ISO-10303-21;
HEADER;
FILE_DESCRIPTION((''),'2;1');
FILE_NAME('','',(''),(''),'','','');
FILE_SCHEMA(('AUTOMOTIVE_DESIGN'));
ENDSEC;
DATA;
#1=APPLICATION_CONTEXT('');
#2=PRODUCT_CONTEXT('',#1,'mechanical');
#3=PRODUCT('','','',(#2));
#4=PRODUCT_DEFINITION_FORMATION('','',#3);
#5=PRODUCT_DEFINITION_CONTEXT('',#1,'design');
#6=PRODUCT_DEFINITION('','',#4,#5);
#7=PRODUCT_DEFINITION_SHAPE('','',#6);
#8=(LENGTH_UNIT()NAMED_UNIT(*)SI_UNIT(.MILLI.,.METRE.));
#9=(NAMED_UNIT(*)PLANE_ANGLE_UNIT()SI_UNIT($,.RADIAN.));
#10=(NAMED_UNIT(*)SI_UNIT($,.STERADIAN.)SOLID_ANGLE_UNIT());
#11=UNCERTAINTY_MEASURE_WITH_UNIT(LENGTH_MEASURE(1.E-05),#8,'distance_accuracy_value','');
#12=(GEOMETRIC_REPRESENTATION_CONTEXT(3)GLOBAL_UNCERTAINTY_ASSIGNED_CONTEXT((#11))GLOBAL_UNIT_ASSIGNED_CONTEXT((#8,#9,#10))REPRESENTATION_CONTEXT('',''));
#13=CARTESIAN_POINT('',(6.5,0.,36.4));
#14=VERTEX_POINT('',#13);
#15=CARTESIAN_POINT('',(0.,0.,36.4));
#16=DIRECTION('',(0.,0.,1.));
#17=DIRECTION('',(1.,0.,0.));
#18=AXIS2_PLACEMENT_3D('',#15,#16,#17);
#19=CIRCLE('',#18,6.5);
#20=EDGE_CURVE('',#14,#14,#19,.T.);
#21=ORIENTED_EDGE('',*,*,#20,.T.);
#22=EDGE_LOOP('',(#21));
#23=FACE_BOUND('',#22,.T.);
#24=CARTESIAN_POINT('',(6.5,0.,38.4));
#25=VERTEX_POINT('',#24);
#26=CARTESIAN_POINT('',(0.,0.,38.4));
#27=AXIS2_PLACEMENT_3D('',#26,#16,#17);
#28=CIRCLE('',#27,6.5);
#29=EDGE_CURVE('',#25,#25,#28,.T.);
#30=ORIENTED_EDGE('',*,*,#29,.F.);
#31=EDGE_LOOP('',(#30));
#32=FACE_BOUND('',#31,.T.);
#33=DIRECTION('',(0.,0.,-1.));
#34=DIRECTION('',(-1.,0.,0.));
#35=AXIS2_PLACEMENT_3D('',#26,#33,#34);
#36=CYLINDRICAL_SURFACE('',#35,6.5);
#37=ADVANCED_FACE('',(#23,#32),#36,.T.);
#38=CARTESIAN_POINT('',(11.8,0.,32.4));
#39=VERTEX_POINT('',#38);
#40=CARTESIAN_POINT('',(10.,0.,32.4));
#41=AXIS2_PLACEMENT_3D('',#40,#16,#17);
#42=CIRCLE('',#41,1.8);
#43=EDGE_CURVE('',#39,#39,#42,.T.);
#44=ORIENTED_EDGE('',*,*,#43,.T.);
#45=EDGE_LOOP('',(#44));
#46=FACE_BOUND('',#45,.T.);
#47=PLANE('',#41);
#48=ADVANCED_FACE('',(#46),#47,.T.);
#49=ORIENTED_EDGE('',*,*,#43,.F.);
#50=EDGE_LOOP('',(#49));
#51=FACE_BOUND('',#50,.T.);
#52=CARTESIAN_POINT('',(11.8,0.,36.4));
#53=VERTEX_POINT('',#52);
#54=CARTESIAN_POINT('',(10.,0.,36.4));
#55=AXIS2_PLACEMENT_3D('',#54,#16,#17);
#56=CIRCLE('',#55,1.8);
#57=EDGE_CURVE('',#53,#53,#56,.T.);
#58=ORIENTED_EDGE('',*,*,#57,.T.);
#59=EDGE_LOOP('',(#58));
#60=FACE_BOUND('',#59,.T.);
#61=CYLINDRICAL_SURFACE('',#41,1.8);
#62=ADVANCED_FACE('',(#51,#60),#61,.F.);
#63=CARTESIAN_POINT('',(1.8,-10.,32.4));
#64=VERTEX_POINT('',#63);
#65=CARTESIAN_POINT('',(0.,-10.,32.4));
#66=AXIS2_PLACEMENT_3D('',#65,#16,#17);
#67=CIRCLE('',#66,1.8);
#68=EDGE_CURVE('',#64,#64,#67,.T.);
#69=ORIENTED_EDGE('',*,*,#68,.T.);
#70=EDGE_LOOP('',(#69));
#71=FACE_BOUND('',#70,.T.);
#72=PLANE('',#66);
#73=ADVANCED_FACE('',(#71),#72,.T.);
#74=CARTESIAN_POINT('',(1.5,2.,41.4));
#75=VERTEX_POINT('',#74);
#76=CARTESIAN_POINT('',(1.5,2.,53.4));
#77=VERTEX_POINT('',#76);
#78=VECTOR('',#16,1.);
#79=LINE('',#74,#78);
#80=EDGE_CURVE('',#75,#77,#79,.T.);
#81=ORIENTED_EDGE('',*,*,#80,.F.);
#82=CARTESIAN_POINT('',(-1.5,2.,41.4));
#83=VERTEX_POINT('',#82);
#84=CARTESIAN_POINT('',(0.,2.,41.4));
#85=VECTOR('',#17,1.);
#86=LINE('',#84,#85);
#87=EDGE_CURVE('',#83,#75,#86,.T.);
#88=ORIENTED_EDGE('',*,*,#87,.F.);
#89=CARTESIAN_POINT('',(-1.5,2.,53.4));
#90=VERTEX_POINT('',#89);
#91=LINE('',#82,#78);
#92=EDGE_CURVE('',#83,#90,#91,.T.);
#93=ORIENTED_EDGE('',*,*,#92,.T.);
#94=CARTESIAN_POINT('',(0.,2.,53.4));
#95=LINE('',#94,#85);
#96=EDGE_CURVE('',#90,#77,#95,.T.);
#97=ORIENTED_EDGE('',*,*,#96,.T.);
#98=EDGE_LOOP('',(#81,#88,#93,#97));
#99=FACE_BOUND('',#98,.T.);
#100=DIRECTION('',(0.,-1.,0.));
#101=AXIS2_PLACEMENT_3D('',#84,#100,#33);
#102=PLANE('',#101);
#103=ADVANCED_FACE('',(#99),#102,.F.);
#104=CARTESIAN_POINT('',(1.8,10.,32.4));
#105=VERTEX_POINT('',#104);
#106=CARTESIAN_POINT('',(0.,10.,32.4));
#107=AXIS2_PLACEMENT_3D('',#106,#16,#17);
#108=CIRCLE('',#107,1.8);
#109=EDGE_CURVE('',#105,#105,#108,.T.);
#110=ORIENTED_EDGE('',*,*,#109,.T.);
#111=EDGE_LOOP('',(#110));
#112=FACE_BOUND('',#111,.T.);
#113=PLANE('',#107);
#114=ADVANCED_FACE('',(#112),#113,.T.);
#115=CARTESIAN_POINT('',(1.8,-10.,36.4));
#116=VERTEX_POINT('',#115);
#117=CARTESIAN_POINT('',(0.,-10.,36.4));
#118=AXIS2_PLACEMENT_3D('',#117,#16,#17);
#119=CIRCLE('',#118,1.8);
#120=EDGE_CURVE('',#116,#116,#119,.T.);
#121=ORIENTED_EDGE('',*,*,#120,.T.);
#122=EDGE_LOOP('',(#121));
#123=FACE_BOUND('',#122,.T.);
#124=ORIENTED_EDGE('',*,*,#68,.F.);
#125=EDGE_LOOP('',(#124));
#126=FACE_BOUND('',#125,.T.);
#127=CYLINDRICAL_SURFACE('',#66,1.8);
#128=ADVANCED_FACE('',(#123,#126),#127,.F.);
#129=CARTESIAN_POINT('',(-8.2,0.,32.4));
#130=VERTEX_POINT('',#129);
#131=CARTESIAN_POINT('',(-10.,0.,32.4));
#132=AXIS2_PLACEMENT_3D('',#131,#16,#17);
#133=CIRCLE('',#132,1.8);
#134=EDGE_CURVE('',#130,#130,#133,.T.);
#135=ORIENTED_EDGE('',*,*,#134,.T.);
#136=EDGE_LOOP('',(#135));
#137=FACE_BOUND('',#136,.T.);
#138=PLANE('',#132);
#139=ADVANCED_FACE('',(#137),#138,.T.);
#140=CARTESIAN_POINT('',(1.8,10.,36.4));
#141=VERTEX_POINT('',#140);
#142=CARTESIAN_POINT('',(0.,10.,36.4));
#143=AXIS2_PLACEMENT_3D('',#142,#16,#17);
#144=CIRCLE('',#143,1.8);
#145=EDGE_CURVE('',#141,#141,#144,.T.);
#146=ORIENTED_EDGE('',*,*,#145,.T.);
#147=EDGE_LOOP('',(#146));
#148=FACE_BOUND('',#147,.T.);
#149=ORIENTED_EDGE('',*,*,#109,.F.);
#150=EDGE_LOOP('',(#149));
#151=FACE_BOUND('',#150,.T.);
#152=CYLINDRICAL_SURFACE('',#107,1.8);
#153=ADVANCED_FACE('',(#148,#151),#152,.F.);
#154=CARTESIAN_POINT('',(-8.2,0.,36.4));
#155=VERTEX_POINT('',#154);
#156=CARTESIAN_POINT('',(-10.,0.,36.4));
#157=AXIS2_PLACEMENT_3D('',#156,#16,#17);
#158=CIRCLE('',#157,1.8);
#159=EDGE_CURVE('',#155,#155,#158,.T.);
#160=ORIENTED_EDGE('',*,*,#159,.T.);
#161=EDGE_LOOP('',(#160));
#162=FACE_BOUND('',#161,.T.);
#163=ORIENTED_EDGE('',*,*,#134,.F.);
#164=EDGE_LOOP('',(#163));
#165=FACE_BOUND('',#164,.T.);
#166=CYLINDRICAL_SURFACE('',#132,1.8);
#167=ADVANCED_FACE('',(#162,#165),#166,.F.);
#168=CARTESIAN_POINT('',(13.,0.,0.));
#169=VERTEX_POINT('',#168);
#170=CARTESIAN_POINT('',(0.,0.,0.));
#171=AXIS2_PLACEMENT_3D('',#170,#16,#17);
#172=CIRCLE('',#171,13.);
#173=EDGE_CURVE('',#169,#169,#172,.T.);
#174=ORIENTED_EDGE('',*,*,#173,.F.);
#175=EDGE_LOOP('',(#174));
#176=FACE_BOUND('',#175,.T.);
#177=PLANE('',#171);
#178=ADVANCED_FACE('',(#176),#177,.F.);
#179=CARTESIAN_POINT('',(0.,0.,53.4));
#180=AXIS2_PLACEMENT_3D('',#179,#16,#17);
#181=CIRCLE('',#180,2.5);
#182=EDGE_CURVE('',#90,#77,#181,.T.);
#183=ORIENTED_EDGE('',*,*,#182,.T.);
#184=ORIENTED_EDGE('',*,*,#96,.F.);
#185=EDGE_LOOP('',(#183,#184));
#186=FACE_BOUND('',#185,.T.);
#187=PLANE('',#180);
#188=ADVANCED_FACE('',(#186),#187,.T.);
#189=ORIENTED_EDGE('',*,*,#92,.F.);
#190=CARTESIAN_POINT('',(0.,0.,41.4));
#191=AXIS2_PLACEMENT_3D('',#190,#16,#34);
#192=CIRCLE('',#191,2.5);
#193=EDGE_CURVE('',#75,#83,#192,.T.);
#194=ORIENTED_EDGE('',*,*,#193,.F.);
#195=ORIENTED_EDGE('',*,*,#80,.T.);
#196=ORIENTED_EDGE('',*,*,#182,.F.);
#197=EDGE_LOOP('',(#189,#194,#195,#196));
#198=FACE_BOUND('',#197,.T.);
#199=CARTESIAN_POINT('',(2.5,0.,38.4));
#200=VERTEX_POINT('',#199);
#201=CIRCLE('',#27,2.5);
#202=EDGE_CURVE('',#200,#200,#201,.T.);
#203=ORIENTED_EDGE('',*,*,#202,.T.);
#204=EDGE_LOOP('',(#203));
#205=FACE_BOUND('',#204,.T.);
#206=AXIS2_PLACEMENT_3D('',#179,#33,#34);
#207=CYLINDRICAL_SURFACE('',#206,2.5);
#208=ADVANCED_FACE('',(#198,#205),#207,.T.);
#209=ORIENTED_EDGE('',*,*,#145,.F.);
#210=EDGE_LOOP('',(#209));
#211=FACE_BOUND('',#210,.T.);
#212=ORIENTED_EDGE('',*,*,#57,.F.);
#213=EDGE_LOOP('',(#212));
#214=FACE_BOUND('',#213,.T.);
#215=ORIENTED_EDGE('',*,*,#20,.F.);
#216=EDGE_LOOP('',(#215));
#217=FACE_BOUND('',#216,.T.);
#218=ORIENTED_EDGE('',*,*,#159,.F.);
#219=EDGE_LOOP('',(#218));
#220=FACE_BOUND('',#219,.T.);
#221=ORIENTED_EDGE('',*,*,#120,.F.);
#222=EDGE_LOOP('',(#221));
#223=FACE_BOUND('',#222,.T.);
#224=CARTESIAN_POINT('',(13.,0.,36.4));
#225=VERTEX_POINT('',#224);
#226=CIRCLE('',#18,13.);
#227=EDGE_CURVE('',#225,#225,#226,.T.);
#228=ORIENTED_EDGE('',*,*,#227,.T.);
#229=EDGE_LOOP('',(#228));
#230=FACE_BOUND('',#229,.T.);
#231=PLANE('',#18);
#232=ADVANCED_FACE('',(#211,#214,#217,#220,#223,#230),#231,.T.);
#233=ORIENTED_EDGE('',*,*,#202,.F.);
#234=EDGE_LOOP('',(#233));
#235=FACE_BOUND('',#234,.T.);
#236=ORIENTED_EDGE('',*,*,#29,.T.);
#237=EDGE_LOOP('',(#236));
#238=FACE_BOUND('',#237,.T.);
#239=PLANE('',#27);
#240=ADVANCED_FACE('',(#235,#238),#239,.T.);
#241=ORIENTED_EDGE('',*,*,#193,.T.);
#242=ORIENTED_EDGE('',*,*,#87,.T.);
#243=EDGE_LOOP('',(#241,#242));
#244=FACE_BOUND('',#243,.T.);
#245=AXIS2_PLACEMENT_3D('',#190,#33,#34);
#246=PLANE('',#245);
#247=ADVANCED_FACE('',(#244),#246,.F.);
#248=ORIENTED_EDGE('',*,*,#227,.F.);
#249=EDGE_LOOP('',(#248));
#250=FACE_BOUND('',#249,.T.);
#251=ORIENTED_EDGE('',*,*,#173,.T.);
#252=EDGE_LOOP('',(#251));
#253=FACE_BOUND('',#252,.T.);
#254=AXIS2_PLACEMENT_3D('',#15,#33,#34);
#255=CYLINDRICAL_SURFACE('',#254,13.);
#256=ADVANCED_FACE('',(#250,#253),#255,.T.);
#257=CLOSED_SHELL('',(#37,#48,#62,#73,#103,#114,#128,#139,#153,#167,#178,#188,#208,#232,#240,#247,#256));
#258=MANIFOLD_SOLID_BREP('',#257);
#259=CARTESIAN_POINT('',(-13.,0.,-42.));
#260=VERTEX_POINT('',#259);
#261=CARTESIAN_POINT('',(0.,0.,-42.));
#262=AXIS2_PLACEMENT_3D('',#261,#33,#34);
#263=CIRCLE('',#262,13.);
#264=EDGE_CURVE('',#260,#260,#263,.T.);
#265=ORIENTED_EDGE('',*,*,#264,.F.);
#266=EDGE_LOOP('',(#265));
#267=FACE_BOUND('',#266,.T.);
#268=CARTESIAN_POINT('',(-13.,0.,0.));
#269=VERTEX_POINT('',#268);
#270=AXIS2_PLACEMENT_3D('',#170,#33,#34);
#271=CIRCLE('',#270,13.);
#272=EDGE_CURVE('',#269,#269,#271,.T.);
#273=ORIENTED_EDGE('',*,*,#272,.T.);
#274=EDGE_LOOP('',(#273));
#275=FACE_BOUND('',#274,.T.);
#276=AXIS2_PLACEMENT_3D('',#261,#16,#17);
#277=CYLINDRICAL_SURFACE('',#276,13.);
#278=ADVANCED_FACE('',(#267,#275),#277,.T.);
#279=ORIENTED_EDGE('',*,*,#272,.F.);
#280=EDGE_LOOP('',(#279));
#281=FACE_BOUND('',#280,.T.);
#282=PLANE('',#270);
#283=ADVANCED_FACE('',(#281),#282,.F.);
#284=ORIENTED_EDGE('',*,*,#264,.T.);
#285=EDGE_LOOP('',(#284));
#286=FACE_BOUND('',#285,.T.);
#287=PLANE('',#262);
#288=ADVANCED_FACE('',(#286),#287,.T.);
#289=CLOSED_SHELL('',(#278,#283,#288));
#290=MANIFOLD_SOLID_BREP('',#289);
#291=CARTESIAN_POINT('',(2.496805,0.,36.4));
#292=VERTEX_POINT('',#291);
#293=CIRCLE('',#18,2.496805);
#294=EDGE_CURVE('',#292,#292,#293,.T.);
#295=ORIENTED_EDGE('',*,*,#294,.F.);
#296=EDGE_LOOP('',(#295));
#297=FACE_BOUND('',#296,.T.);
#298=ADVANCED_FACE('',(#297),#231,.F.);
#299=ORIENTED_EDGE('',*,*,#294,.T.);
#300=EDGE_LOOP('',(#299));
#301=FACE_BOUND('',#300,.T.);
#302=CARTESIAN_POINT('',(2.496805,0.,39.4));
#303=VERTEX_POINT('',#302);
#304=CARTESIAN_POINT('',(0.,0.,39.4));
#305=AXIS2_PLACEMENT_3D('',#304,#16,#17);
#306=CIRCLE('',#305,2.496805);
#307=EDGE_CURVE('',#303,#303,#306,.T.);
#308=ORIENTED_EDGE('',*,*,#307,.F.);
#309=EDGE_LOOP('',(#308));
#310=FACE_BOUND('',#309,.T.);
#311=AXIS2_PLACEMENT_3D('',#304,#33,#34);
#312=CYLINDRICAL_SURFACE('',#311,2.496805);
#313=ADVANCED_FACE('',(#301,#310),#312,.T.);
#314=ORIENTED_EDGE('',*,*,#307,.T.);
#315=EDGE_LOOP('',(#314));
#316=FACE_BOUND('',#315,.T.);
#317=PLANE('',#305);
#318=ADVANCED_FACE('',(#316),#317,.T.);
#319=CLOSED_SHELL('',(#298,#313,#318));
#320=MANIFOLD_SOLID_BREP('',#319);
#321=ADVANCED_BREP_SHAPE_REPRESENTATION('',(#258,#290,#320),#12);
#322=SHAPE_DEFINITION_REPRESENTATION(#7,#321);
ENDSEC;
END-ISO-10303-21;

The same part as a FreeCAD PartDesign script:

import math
import FreeCAD as App
import Part
import Sketcher

V = App.Vector
Q = App.Units.Quantity

doc = App.newDocument("Part")
body = doc.addObject("PartDesign::Body", "Body")

# Sketch on XY plane
sketch1 = body.newObject("Sketcher::SketchObject", "Sketch")
sketch1.AttachmentSupport = (doc.getObject("XY_Plane"), [""])
sketch1.MapMode = "FlatFace"
sketch1.addGeometry(Part.Circle(V(0, 0, 0), V(0, 0, 1), 13), False)
sketch1.addConstraint([
    Sketcher.Constraint("Coincident", 0, 3, -1, 1),
    Sketcher.Constraint("Diameter", 0, Q("26 mm")),
])
pad1 = body.newObject("PartDesign::Pad", "Pad")
pad1.Profile = sketch1
pad1.Length = 36.4

# Sketch on XY plane
sketch2 = body.newObject("Sketcher::SketchObject", "Sketch001")
sketch2.AttachmentSupport = (doc.getObject("XY_Plane"), [""])
sketch2.MapMode = "FlatFace"
sketch2.AttachmentOffset = App.Placement(V(0, 0, 36.4), App.Rotation())
sketch2.addGeometry(Part.Circle(V(0, 0, 0), V(0, 0, 1), 2.5), False)
sketch2.addConstraint([
    Sketcher.Constraint("Coincident", 0, 3, -1, 1),
    Sketcher.Constraint("Diameter", 0, Q("5 mm")),
])
pad2 = body.newObject("PartDesign::Pad", "Pad001")
pad2.Profile = sketch2
pad2.Length = 17

# Sketch on XY plane
sketch3 = body.newObject("Sketcher::SketchObject", "Sketch002")
sketch3.AttachmentSupport = (doc.getObject("XY_Plane"), [""])
sketch3.MapMode = "FlatFace"
sketch3.AttachmentOffset = App.Placement(V(0, 0, 36.4), App.Rotation())
sketch3.addGeometry([
    Part.Circle(V(0, 0, 0), V(0, 0, 1), 6.5),
    Part.Circle(V(0, 0, 0), V(0, 0, 1), 2.5),
], False)
sketch3.addConstraint([
    Sketcher.Constraint("Coincident", 0, 3, -1, 1),
    Sketcher.Constraint("Coincident", 1, 3, -1, 1),
    Sketcher.Constraint("Diameter", 0, Q("13 mm")),
    Sketcher.Constraint("Diameter", 1, Q("5 mm")),
])
pad3 = body.newObject("PartDesign::Pad", "Pad002")
pad3.Profile = sketch3
pad3.Length = 2

# Sketch on XY plane
sketch4 = body.newObject("Sketcher::SketchObject", "Sketch003")
sketch4.AttachmentSupport = (doc.getObject("XY_Plane"), [""])
sketch4.MapMode = "FlatFace"
sketch4.AttachmentOffset = App.Placement(V(0, 0, 36.4), App.Rotation())
sketch4.addGeometry([
    Part.Circle(V(0, 10, 0), V(0, 0, 1), 1.8),
    Part.Circle(V(-10, 0, 0), V(0, 0, 1), 1.8),
    Part.Circle(V(0, -10, 0), V(0, 0, 1), 1.8),
    Part.Circle(V(10, 0, 0), V(0, 0, 1), 1.8),
], False)
sketch4.addConstraint([
    Sketcher.Constraint("Equal", 0, 1),
    Sketcher.Constraint("Equal", 1, 2),
    Sketcher.Constraint("Equal", 2, 3),
    Sketcher.Constraint("Symmetric", 0, 3, 2, 3, -1, 1),
    Sketcher.Constraint("Symmetric", 1, 3, 3, 3, -1, 1),
    Sketcher.Constraint("PointOnObject", 0, 3, -2),
    Sketcher.Constraint("PointOnObject", 1, 3, -1),
    Sketcher.Constraint("Diameter", 0, Q("3.6 mm")),
    Sketcher.Constraint("DistanceY", -1, 1, 0, 3, Q("10 mm")),
    Sketcher.Constraint("DistanceX", 1, 3, -1, 1, Q("10 mm")),
])
pocket1 = body.newObject("PartDesign::Pocket", "Pocket")
pocket1.Profile = sketch4
pocket1.Length = 4

# Sketch on XY plane
sketch5 = body.newObject("Sketcher::SketchObject", "Sketch004")
sketch5.AttachmentSupport = (doc.getObject("XY_Plane"), [""])
sketch5.MapMode = "FlatFace"
sketch5.AttachmentOffset = App.Placement(V(0, 0, 53.4), App.Rotation())
sketch5.addGeometry([
    Part.ArcOfCircle(Part.Circle(V(0, 0, 0), V(0, 0, 1), 2.5), math.radians(53), math.radians(127)),
    Part.LineSegment(V(-1.5, 2, 0), V(1.5, 2, 0)),
], False)
sketch5.addConstraint([
    Sketcher.Constraint("Coincident", 0, 1, 1, 2),
    Sketcher.Constraint("Coincident", 1, 1, 0, 2),
    Sketcher.Constraint("Horizontal", 1),
    Sketcher.Constraint("Coincident", 0, 3, -1, 1),
    Sketcher.Constraint("Radius", 0, Q("2.5 mm")),
    Sketcher.Constraint("DistanceX", 1, 1, 1, 2, Q("3 mm")),
])
pocket2 = body.newObject("PartDesign::Pocket", "Pocket001")
pocket2.Profile = sketch5
pocket2.Length = 12
body2 = doc.addObject("PartDesign::Body", "Body001")

# Sketch on XY plane
sketch6 = body2.newObject("Sketcher::SketchObject", "Sketch005")
sketch6.AttachmentSupport = (doc.getObject("XY_Plane001"), [""])
sketch6.MapMode = "FlatFace"
sketch6.AttachmentOffset = App.Placement(V(0, 0, 36.4), App.Rotation())
sketch6.addGeometry(Part.Circle(V(0, 0, 0), V(0, 0, 1), 2.5), False)
sketch6.addConstraint([
    Sketcher.Constraint("Coincident", 0, 3, -1, 1),
    Sketcher.Constraint("Diameter", 0, Q("4.993611 mm")),
])
pad4 = body2.newObject("PartDesign::Pad", "Pad003")
pad4.Profile = sketch6
pad4.Length = 3
body3 = doc.addObject("PartDesign::Body", "Body002")

# Sketch on XY plane
sketch7 = body3.newObject("Sketcher::SketchObject", "Sketch006")
sketch7.AttachmentSupport = (doc.getObject("XY_Plane002"), [""])
sketch7.MapMode = "FlatFace"
sketch7.addGeometry(Part.Circle(V(0, 0, 0), V(0, 0, 1), 13), False)
sketch7.addConstraint([
    Sketcher.Constraint("Coincident", 0, 3, -1, 1),
    Sketcher.Constraint("Diameter", 0, Q("26 mm")),
])
pad5 = body3.newObject("PartDesign::Pad", "Pad004")
pad5.Profile = sketch7
pad5.Length = 42
pad5.Reversed = True

doc.recompute()
